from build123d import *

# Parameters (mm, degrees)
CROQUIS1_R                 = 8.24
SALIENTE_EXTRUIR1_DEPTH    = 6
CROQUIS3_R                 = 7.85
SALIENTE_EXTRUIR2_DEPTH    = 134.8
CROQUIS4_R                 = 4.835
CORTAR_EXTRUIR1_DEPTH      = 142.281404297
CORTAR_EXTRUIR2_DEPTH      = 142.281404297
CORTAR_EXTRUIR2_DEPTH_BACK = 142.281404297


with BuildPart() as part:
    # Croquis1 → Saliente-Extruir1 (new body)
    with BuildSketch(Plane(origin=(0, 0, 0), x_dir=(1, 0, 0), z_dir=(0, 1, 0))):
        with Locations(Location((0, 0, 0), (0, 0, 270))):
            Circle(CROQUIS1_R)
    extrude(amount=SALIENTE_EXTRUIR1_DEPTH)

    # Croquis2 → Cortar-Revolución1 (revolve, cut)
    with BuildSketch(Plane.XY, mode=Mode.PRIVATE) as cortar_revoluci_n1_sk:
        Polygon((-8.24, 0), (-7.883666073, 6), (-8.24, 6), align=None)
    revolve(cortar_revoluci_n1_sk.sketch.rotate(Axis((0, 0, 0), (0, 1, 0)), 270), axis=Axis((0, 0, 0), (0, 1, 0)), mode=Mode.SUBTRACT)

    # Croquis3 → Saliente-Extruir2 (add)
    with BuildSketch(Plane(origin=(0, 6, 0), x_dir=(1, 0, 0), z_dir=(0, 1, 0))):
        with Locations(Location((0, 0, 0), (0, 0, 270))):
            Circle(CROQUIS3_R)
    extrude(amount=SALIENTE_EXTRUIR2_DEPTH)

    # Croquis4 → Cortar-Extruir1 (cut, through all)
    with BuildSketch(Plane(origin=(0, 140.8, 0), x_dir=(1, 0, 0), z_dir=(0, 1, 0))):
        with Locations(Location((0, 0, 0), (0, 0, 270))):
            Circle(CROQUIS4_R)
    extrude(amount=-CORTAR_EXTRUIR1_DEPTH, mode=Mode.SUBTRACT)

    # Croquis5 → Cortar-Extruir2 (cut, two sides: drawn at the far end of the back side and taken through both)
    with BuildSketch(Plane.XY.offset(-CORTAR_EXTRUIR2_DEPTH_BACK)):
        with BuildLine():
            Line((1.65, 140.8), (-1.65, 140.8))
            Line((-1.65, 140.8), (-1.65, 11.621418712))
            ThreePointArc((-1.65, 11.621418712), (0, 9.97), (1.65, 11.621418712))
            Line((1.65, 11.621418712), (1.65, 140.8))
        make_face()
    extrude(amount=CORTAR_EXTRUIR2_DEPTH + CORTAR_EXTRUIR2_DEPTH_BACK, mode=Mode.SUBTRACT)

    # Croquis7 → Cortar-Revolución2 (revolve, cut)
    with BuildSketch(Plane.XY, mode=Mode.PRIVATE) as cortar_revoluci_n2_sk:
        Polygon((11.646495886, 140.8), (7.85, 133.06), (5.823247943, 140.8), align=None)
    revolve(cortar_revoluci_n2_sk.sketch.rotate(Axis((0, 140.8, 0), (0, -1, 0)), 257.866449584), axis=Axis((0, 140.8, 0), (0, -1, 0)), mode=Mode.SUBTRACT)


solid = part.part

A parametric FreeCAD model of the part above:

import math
import FreeCAD as App
import Part
import Sketcher
from FreeCAD import Vector

doc = App.newDocument("Part")
body = doc.addObject("PartDesign::Body", "Body")

# Sketch on XZ plane
sketch1 = doc.addObject("Sketcher::SketchObject", "Sketch")
body.addObject(sketch1)
sketch1.AttachmentSupport = (doc.XZ_Plane, [""])
sketch1.MapMode = "FlatFace"
sketch1.addGeometry(Part.Circle(Vector(0, 0, 0), Vector(0, 0, 1), 8), False)
sketch1.addConstraint([
    Sketcher.Constraint("Coincident", 0, 3, -1, 1),
    Sketcher.Constraint("Diameter", 0, 16.48),
])
pad1 = doc.addObject("PartDesign::Pad", "Pad")
body.addObject(pad1)
pad1.Profile = sketch1
pad1.Length = 6
pad1.Reversed = True

# Sketch on XY plane
sketch2 = doc.addObject("Sketcher::SketchObject", "Sketch001")
body.addObject(sketch2)
sketch2.AttachmentSupport = (doc.XY_Plane, [""])
sketch2.MapMode = "FlatFace"
sketch2.addGeometry([
    Part.LineSegment(Vector(-8.24, 0, 0), Vector(-7.88, 6, 0)),
    Part.LineSegment(Vector(-7.88, 6, 0), Vector(-8.24, 6, 0)),
    Part.LineSegment(Vector(-8.24, 6, 0), Vector(-8.24, 0, 0)),
], False)
sketch2.addConstraint([
    Sketcher.Constraint("Coincident", 0, 2, 1, 1),
    Sketcher.Constraint("Coincident", 1, 2, 2, 1),
    Sketcher.Constraint("Coincident", 2, 2, 0, 1),
    Sketcher.Constraint("Horizontal", 1),
    Sketcher.Constraint("Vertical", 2),
    Sketcher.Constraint("PointOnObject", 2, 2, -1),
    Sketcher.Constraint("DistanceY", 2, 2, 2, 1, 6.0),
    Sketcher.Constraint("DistanceX", 1, 2, -1, 1, 8.24),
    Sketcher.Constraint("Distance", 0, 6.010572),
])
groove = doc.addObject("PartDesign::Groove", "Groove")
body.addObject(groove)
groove.Profile = sketch2
groove.ReferenceAxis = (sketch2, ["V_Axis"])
groove.Angle = 360

# Sketch on XZ plane
sketch3 = doc.addObject("Sketcher::SketchObject", "Sketch002")
body.addObject(sketch3)
sketch3.AttachmentSupport = (doc.XZ_Plane, [""])
sketch3.MapMode = "FlatFace"
sketch3.AttachmentOffset = App.Placement(Vector(0, 0, -6), App.Rotation())
sketch3.addGeometry(Part.Circle(Vector(0, 0, 0), Vector(0, 0, 1), 8), False)
sketch3.addConstraint([
    Sketcher.Constraint("Coincident", 0, 3, -1, 1),
    Sketcher.Constraint("Diameter", 0, 15.7),
])
pad2 = doc.addObject("PartDesign::Pad", "Pad001")
body.addObject(pad2)
pad2.Profile = sketch3
pad2.Length = 134.8
pad2.Reversed = True

# Sketch on XZ plane
sketch4 = doc.addObject("Sketcher::SketchObject", "Sketch003")
body.addObject(sketch4)
sketch4.AttachmentSupport = (doc.XZ_Plane, [""])
sketch4.MapMode = "FlatFace"
sketch4.AttachmentOffset = App.Placement(Vector(0, 0, -140.8), App.Rotation())
sketch4.addGeometry(Part.Circle(Vector(0, 0, 0), Vector(0, 0, 1), 4.8), False)
sketch4.addConstraint([
    Sketcher.Constraint("Coincident", 0, 3, -1, 1),
    Sketcher.Constraint("Diameter", 0, 9.67),
])
pocket1 = doc.addObject("PartDesign::Pocket", "Pocket")
body.addObject(pocket1)
pocket1.Profile = sketch4
pocket1.Type = "ThroughAll"
pocket1.Reversed = True

# Sketch on XY plane
sketch5 = doc.addObject("Sketcher::SketchObject", "Sketch004")
body.addObject(sketch5)
sketch5.AttachmentSupport = (doc.XY_Plane, [""])
sketch5.MapMode = "FlatFace"
sketch5.addGeometry([
    Part.LineSegment(Vector(1.6, 140.8, 0), Vector(-1.6, 140.8, 0)),
    Part.LineSegment(Vector(-1.6, 140.8, 0), Vector(-1.6, 11.6, 0)),
    Part.ArcOfCircle(Part.Circle(Vector(0, 11.6, 0), Vector(0, 0, 1), 1.7), math.radians(180), math.radians(360)),
    Part.LineSegment(Vector(1.6, 11.6, 0), Vector(1.6, 140.8, 0)),
], False)
sketch5.addConstraint([
    Sketcher.Constraint("Coincident", 0, 2, 1, 1),
    Sketcher.Constraint("Coincident", 1, 2, 2, 1),
    Sketcher.Constraint("Coincident", 2, 2, 3, 1),
    Sketcher.Constraint("Coincident", 3, 2, 0, 1),
    Sketcher.Constraint("Horizontal", 0),
    Sketcher.Constraint("Vertical", 1),
    Sketcher.Constraint("Vertical", 3),
    Sketcher.Constraint("Symmetric", 1, 2, 2, 2, -2),
    Sketcher.Constraint("Radius", 2, 1.650001),
    Sketcher.Constraint("DistanceY", -1, 1, 0, 2, 140.8),
    Sketcher.Constraint("DistanceY", -1, 1, 2, 3, 11.620001),
    Sketcher.Constraint("DistanceY", 1, 2, 1, 1, 129.178581),
])
pocket2 = doc.addObject("PartDesign::Pocket", "Pocket001")
body.addObject(pocket2)
pocket2.Profile = sketch5
pocket2.Type = "ThroughAll"
pocket2.Midplane = True

# Sketch on XY plane
sketch6 = doc.addObject("Sketcher::SketchObject", "Sketch005")
body.addObject(sketch6)
sketch6.AttachmentSupport = (doc.XY_Plane, [""])
sketch6.MapMode = "FlatFace"
sketch6.addGeometry([
    Part.LineSegment(Vector(8, 133, 0), Vector(12, 141, 0)),
    Part.LineSegment(Vector(12, 141, 0), Vector(6, 141, 0)),
    Part.LineSegment(Vector(6, 141, 0), Vector(8, 133, 0)),
], False)
sketch6.addConstraint([
    Sketcher.Constraint("Coincident", 0, 2, 1, 1),
    Sketcher.Constraint("Coincident", 1, 2, 2, 1),
    Sketcher.Constraint("Coincident", 2, 2, 0, 1),
    Sketcher.Constraint("Horizontal", 1),
    Sketcher.Constraint("DistanceY", -1, 1, 0, 2, 140.8),
    Sketcher.Constraint("DistanceX", -1, 1, 2, 2, 7.85),
    Sketcher.Constraint("DistanceY", -1, 1, 2, 2, 133.06),
    Sketcher.Constraint("Distance", 0, 8.620962),
    Sketcher.Constraint("DistanceX", 1, 2, 1, 1, 5.823248),
])
groove2 = doc.addObject("PartDesign::Groove", "Groove001")
body.addObject(groove2)
groove2.Profile = sketch6
groove2.ReferenceAxis = (sketch6, ["V_Axis"])
groove2.Angle = 360

doc.recompute()
